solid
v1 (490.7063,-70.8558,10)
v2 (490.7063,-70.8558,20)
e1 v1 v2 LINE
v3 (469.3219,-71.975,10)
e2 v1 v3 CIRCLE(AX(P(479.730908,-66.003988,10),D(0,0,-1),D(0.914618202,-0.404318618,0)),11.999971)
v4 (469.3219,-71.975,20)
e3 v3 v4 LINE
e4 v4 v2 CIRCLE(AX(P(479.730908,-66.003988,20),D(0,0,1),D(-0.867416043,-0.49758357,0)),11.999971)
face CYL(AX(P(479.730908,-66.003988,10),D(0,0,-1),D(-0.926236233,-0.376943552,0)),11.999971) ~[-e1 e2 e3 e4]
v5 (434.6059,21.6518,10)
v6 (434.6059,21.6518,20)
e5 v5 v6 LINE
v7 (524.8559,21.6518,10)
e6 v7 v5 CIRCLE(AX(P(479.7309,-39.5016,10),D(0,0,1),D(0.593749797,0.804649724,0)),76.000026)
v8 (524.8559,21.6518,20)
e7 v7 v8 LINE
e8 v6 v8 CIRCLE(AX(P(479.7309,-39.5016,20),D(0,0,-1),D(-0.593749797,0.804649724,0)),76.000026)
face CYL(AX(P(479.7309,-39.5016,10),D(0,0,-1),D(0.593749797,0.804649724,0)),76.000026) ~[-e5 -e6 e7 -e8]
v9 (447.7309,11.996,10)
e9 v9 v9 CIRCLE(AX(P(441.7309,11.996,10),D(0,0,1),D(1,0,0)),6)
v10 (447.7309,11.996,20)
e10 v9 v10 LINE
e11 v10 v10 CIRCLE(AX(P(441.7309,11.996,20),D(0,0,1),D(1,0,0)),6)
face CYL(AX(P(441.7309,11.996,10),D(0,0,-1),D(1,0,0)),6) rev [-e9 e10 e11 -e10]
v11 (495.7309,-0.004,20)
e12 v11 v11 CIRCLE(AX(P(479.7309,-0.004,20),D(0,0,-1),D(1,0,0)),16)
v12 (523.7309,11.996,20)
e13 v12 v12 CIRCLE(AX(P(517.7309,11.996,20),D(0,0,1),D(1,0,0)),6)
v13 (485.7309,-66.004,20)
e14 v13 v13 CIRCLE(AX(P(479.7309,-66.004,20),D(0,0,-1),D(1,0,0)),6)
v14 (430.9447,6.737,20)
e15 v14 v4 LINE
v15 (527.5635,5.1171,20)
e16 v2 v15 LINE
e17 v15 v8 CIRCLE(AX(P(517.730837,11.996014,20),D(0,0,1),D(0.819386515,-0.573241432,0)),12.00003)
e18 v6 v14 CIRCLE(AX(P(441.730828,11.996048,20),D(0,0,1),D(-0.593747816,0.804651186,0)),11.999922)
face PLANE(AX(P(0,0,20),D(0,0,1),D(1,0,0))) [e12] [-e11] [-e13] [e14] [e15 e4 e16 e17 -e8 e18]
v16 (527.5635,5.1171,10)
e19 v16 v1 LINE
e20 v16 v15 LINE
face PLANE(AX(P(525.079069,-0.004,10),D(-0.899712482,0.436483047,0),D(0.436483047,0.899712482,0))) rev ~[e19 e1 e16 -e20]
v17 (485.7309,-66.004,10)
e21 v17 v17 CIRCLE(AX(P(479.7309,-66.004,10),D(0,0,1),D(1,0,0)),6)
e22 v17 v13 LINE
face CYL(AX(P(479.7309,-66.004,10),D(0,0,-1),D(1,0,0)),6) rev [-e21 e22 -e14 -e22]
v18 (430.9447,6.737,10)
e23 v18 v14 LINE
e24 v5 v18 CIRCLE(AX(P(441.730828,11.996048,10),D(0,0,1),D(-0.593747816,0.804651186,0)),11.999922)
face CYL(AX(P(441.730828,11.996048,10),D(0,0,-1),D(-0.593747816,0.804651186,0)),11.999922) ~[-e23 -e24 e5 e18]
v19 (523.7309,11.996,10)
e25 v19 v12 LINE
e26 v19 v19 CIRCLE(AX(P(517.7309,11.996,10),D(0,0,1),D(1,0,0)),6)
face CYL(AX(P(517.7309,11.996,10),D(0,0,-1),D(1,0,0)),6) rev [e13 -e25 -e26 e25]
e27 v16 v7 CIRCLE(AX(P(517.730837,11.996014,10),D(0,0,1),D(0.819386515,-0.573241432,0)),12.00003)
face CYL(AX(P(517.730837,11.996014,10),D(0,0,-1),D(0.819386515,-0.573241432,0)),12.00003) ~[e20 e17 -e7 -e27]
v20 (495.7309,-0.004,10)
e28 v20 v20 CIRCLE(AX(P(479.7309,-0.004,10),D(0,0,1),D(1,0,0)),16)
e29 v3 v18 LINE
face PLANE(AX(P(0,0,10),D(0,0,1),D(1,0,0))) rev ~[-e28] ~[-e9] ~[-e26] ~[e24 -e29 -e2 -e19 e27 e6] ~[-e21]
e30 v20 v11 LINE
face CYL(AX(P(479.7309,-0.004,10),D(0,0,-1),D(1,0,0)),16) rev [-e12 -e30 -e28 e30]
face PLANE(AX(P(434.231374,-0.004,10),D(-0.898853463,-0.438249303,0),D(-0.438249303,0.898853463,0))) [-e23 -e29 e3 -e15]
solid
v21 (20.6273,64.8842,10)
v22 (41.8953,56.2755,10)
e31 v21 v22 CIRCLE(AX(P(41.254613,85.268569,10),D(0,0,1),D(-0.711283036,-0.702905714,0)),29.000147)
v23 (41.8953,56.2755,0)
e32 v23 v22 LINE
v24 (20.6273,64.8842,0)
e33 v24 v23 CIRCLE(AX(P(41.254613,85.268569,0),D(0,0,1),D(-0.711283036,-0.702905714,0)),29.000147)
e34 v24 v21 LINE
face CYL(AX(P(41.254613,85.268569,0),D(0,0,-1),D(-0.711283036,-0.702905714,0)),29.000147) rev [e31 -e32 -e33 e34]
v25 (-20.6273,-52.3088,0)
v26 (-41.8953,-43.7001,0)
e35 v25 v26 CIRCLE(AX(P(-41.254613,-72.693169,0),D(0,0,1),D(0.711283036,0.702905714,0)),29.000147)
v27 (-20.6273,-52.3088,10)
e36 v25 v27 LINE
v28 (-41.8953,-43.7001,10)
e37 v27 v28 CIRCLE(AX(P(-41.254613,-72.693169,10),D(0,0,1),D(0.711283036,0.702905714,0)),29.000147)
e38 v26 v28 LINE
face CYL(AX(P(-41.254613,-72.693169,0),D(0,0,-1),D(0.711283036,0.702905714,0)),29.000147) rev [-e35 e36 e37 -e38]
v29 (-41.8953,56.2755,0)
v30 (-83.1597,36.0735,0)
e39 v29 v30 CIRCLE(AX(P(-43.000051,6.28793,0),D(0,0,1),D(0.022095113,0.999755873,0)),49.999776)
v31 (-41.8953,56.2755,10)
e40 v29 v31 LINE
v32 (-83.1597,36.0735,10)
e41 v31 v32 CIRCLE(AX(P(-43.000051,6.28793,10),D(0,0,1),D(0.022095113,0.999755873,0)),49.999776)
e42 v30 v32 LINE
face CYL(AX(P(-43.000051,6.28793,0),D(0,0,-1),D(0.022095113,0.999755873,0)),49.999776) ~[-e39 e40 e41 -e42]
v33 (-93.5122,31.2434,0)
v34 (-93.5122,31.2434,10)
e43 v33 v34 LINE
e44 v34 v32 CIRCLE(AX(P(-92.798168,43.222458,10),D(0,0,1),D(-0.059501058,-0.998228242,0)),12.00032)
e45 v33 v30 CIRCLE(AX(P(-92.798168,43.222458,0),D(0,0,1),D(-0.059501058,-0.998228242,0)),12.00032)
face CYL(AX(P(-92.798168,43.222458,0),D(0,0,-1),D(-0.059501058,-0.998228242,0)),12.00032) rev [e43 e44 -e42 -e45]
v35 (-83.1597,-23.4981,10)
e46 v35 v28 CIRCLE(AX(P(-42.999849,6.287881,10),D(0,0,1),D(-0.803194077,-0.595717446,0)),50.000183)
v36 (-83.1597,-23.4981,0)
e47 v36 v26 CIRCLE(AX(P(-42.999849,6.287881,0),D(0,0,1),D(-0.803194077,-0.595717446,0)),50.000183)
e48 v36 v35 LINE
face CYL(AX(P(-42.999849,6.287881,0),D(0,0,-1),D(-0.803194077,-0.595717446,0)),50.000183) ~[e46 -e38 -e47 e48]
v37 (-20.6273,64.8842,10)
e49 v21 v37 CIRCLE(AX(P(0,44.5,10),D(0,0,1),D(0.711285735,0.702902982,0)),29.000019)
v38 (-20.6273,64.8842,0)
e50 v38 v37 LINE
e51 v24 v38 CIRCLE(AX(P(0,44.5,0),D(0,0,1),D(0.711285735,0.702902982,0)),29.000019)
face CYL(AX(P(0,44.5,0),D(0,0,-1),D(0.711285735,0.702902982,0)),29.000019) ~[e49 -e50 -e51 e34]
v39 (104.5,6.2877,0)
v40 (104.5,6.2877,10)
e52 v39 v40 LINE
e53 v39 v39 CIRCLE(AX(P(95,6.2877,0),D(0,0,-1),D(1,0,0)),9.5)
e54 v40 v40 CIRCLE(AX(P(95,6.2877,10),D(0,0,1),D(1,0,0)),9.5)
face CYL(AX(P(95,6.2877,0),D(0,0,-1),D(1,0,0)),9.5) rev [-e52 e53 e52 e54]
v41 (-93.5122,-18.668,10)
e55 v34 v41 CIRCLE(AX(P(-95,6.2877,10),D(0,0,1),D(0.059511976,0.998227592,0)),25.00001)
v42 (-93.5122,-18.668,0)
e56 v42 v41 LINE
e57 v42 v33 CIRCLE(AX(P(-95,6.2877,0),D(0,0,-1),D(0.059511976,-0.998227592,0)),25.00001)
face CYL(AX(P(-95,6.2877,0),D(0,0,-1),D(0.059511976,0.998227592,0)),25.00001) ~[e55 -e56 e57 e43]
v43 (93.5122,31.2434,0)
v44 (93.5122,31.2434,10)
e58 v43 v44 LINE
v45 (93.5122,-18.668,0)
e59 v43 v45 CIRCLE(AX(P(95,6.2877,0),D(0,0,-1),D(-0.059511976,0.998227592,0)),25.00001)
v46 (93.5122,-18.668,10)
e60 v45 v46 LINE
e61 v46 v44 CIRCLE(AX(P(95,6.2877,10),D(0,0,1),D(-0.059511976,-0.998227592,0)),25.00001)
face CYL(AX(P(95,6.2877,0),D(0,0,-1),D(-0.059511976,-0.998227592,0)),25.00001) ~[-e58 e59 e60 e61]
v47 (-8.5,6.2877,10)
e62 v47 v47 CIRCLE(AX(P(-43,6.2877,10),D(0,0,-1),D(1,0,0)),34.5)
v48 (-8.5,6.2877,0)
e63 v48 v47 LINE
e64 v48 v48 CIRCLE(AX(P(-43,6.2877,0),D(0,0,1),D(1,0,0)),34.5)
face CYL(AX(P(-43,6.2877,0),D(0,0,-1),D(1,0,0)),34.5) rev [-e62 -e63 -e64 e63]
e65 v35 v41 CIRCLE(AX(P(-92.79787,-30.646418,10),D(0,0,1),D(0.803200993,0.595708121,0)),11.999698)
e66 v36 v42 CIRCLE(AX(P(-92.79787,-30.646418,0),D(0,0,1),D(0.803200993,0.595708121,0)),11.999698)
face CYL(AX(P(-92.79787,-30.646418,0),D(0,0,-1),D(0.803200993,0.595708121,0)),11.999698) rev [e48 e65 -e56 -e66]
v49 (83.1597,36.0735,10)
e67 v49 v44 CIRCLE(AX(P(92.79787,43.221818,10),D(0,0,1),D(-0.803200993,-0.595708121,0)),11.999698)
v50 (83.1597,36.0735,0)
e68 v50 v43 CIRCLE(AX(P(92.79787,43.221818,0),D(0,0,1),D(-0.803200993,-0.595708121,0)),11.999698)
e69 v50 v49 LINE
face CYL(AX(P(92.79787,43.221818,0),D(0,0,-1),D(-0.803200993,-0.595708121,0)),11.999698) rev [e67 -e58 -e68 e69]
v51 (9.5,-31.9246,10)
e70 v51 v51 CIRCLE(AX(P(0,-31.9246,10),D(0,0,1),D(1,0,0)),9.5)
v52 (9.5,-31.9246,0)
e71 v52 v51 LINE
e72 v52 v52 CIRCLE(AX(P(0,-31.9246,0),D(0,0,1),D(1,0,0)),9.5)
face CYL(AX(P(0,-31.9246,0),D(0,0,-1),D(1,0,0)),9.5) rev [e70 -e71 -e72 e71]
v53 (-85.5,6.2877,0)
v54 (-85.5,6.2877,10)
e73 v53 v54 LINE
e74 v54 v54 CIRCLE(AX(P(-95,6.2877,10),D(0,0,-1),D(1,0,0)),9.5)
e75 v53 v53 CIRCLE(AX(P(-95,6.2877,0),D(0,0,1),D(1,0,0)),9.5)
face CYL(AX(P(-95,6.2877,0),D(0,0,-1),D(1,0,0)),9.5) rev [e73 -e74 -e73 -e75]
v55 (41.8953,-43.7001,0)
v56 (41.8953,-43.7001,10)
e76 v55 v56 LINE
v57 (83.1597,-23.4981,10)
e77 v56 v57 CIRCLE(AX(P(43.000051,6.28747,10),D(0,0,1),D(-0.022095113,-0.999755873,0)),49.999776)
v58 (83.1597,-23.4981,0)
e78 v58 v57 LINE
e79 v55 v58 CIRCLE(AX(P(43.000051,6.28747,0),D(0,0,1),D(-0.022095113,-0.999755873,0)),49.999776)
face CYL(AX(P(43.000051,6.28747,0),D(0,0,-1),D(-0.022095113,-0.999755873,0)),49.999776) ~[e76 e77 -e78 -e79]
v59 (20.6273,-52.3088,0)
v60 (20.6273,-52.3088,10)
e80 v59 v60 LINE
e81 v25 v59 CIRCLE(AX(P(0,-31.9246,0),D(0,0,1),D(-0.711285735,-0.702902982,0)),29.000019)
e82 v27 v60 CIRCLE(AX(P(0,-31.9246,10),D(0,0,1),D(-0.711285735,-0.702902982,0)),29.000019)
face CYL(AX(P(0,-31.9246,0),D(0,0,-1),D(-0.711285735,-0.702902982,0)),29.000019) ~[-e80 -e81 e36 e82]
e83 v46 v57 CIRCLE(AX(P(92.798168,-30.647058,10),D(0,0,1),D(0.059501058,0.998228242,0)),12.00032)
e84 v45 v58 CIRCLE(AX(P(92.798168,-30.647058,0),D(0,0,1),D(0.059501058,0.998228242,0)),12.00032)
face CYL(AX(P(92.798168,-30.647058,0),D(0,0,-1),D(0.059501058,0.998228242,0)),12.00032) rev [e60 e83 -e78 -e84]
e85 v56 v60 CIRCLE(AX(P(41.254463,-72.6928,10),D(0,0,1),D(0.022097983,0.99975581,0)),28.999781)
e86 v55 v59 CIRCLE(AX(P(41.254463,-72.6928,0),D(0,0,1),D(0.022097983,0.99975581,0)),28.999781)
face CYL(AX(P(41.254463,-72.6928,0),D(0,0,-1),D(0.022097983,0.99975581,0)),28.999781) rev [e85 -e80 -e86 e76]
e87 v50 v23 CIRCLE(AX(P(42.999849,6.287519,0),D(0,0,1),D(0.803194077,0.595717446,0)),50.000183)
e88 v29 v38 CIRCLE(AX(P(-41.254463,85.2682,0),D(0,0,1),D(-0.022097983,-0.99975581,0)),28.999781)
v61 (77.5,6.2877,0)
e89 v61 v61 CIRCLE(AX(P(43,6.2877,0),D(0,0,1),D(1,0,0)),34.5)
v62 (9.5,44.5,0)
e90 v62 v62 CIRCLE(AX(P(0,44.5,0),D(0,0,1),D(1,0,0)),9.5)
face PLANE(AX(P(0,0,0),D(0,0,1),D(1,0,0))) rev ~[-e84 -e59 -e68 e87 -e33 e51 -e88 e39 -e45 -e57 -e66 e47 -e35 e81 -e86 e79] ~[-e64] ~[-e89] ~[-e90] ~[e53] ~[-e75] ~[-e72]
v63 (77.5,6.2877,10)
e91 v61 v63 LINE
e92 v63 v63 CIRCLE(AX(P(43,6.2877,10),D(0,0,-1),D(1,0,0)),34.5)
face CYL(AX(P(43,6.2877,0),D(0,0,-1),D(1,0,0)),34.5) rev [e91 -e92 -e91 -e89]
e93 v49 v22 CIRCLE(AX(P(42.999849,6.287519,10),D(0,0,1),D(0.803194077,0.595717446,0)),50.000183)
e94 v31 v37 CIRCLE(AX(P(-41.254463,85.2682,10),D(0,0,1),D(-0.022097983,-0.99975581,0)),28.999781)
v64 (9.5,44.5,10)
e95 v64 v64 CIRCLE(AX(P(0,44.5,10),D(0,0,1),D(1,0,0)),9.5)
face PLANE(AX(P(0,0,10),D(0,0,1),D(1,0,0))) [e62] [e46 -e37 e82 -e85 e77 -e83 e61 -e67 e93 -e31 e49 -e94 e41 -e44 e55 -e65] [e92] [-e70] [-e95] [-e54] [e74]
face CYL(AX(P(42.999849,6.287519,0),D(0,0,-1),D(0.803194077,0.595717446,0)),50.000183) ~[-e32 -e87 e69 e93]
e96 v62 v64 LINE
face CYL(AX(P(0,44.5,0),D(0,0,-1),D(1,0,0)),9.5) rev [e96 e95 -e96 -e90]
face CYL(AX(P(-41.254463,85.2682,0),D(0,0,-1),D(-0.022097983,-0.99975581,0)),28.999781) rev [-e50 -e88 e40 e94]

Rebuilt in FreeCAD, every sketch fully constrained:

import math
import FreeCAD as App
import Part
import Sketcher
Q = App.Units.Quantity

doc = App.newDocument("Part")
body = doc.addObject("PartDesign::Body", "Body")
body.AllowCompound = True

sketch1 = body.newObject("Sketcher::SketchObject", "Sketch")
sketch1.AttachmentSupport = (doc.getObject("XY_Plane"), [""])
sketch1.MapMode = "FlatFace"
sketch1.addGeometry([
    Part.ArcOfCircle(Part.Circle(App.Vector(95, 6, 0), App.Vector(0, 0, 1), 25), math.radians(-93), math.radians(93)),
    Part.ArcOfCircle(Part.Circle(App.Vector(93, 43, 0), App.Vector(0, 0, 1), 12), math.radians(-143), math.radians(-87)),
    Part.ArcOfCircle(Part.Circle(App.Vector(43, 6, 0), App.Vector(0, 0, 1), 50), math.radians(37), math.radians(91)),
    Part.ArcOfCircle(Part.Circle(App.Vector(41, 85, 0), App.Vector(0, 0, 1), 29), math.radians(-135), math.radians(-89)),
    Part.ArcOfCircle(Part.Circle(App.Vector(0, 44, 0), App.Vector(0, 0, 1), 29), math.radians(45), math.radians(135)),
    Part.ArcOfCircle(Part.Circle(App.Vector(-41, 85, 0), App.Vector(0, 0, 1), 29), math.radians(-91), math.radians(-45)),
    Part.ArcOfCircle(Part.Circle(App.Vector(-43, 6, 0), App.Vector(0, 0, 1), 50), math.radians(89), math.radians(143)),
    Part.ArcOfCircle(Part.Circle(App.Vector(-93, 43, 0), App.Vector(0, 0, 1), 12), math.radians(-93), math.radians(-37)),
    Part.ArcOfCircle(Part.Circle(App.Vector(-95, 6, 0), App.Vector(0, 0, 1), 25), math.radians(87), math.radians(273)),
    Part.ArcOfCircle(Part.Circle(App.Vector(-93, -31, 0), App.Vector(0, 0, 1), 12), math.radians(37), math.radians(93)),
    Part.ArcOfCircle(Part.Circle(App.Vector(-43, 6, 0), App.Vector(0, 0, 1), 50), math.radians(-143), math.radians(-89)),
    Part.ArcOfCircle(Part.Circle(App.Vector(-41, -73, 0), App.Vector(0, 0, 1), 29), math.radians(45), math.radians(91)),
    Part.ArcOfCircle(Part.Circle(App.Vector(0, -32, 0), App.Vector(0, 0, 1), 29), math.radians(-135), math.radians(-45)),
    Part.ArcOfCircle(Part.Circle(App.Vector(41, -73, 0), App.Vector(0, 0, 1), 29), math.radians(89), math.radians(135)),
    Part.ArcOfCircle(Part.Circle(App.Vector(43, 6, 0), App.Vector(0, 0, 1), 50), math.radians(-91), math.radians(-37)),
    Part.ArcOfCircle(Part.Circle(App.Vector(93, -31, 0), App.Vector(0, 0, 1), 12), math.radians(87), math.radians(143)),
    Part.Circle(App.Vector(95, 6, 0), App.Vector(0, 0, 1), 10),
    Part.Circle(App.Vector(-95, 6, 0), App.Vector(0, 0, 1), 10),
    Part.Circle(App.Vector(-43, 6, 0), App.Vector(0, 0, 1), 34),
    Part.Circle(App.Vector(43, 6, 0), App.Vector(0, 0, 1), 34),
    Part.Circle(App.Vector(0, -32, 0), App.Vector(0, 0, 1), 10),
    Part.Circle(App.Vector(0, 44, 0), App.Vector(0, 0, 1), 10),
], False)
sketch1.addConstraint([
    Sketcher.Constraint("Tangent", 0, 2, 1, 2),
    Sketcher.Constraint("Tangent", 1, 1, 2, 1),
    Sketcher.Constraint("Tangent", 2, 2, 3, 2),
    Sketcher.Constraint("Tangent", 3, 1, 4, 1),
    Sketcher.Constraint("Tangent", 4, 2, 5, 2),
    Sketcher.Constraint("Tangent", 5, 1, 6, 1),
    Sketcher.Constraint("Tangent", 6, 2, 7, 2),
    Sketcher.Constraint("Tangent", 7, 1, 8, 1),
    Sketcher.Constraint("Tangent", 8, 2, 9, 2),
    Sketcher.Constraint("Tangent", 9, 1, 10, 1),
    Sketcher.Constraint("Tangent", 10, 2, 11, 2),
    Sketcher.Constraint("Tangent", 11, 1, 12, 1),
    Sketcher.Constraint("Tangent", 12, 2, 13, 2),
    Sketcher.Constraint("Tangent", 13, 1, 14, 1),
    Sketcher.Constraint("Tangent", 14, 2, 15, 2),
    Sketcher.Constraint("Tangent", 15, 1, 0, 1),
    Sketcher.Constraint("Coincident", 10, 3, 6, 3),
    Sketcher.Constraint("Coincident", 14, 3, 2, 3),
    Sketcher.Constraint("Coincident", 16, 3, 0, 3),
    Sketcher.Constraint("Coincident", 17, 3, 8, 3),
    Sketcher.Constraint("Coincident", 18, 3, 6, 3),
    Sketcher.Constraint("Coincident", 19, 3, 2, 3),
    Sketcher.Constraint("Coincident", 20, 3, 12, 3),
    Sketcher.Constraint("Coincident", 21, 3, 4, 3),
    Sketcher.Constraint("Equal", 3, 4),
    Sketcher.Constraint("Equal", 4, 5),
    Sketcher.Constraint("Equal", 2, 6),
    Sketcher.Constraint("Equal", 1, 7),
    Sketcher.Constraint("Equal", 0, 8),
    Sketcher.Constraint("Equal", 7, 9),
    Sketcher.Constraint("Equal", 6, 10),
    Sketcher.Constraint("Equal", 5, 11),
    Sketcher.Constraint("Equal", 11, 12),
    Sketcher.Constraint("Equal", 12, 13),
    Sketcher.Constraint("Equal", 10, 14),
    Sketcher.Constraint("Equal", 9, 15),
    Sketcher.Constraint("Equal", 16, 17),
    Sketcher.Constraint("Equal", 18, 19),
    Sketcher.Constraint("Equal", 17, 20),
    Sketcher.Constraint("Equal", 20, 21),
    Sketcher.Constraint("Symmetric", 3, 3, 5, 3, -2),
    Sketcher.Constraint("Symmetric", 1, 3, 7, 3, -2),
    Sketcher.Constraint("PointOnObject", 12, 3, -2),
    Sketcher.Constraint("Horizontal", 0, 3, 2, 3),
    Sketcher.Constraint("Horizontal", 6, 3, 8, 3),
    Sketcher.Constraint("Vertical", 5, 3, 11, 3),
    Sketcher.Constraint("Diameter", 16, Q("19 mm")),
    Sketcher.Constraint("Diameter", 18, Q("69 mm")),
    Sketcher.Constraint("Radius", 0, Q("25 mm")),
    Sketcher.Constraint("Radius", 1, Q("12 mm")),
    Sketcher.Constraint("Radius", 2, Q("50 mm")),
    Sketcher.Constraint("Radius", 3, Q("29 mm")),
    Sketcher.Constraint("DistanceX", -1, 1, 0, 3, Q("95 mm")),
    Sketcher.Constraint("DistanceX", -1, 1, 2, 3, Q("43 mm")),
    Sketcher.Constraint("DistanceY", -1, 1, 4, 3, Q("44.5 mm")),
    Sketcher.Constraint("DistanceY", 10, 2, -1, 1, Q("43.7 mm")),
])
pad1 = body.newObject("PartDesign::Pad", "Pad")
pad1.Profile = sketch1
pad1.Length = 10

sketch2 = body.newObject("Sketcher::SketchObject", "Sketch001")
sketch2.AttachmentSupport = (doc.getObject("XY_Plane"), [""])
sketch2.MapMode = "FlatFace"
sketch2.AttachmentOffset = App.Placement(App.Vector(0, 0, 10), App.Rotation())
sketch2.addGeometry([
    Part.ArcOfCircle(Part.Circle(App.Vector(480, -40, 0), App.Vector(0, 0, 1), 76), math.radians(54), math.radians(126)),
    Part.ArcOfCircle(Part.Circle(App.Vector(442, 12, 0), App.Vector(0, 0, 1), 12), math.radians(126), math.radians(206)),
    Part.LineSegment(App.Vector(431, 7, 0), App.Vector(469, -72, 0)),
    Part.ArcOfCircle(Part.Circle(App.Vector(480, -66, 0), App.Vector(0, 0, 1), 12), math.radians(-150), math.radians(-24)),
    Part.LineSegment(App.Vector(491, -71, 0), App.Vector(528, 5, 0)),
    Part.ArcOfCircle(Part.Circle(App.Vector(518, 12, 0), App.Vector(0, 0, 1), 12), math.radians(-35), math.radians(54)),
    Part.Circle(App.Vector(480, 0, 0), App.Vector(0, 0, 1), 16),
    Part.Circle(App.Vector(518, 12, 0), App.Vector(0, 0, 1), 6),
    Part.Circle(App.Vector(480, -66, 0), App.Vector(0, 0, 1), 6),
    Part.Circle(App.Vector(442, 12, 0), App.Vector(0, 0, 1), 6),
], False)
sketch2.addConstraint([
    Sketcher.Constraint("Tangent", 0, 2, 1, 1),
    Sketcher.Constraint("Tangent", 1, 2, 2, 1),
    Sketcher.Constraint("Coincident", 2, 2, 3, 1),
    Sketcher.Constraint("Coincident", 3, 2, 4, 1),
    Sketcher.Constraint("Coincident", 4, 2, 5, 1),
    Sketcher.Constraint("Tangent", 5, 2, 0, 1),
    Sketcher.Constraint("Coincident", 7, 3, 5, 3),
    Sketcher.Constraint("Coincident", 8, 3, 3, 3),
    Sketcher.Constraint("Coincident", 9, 3, 1, 3),
    Sketcher.Constraint("Equal", 1, 3),
    Sketcher.Constraint("Equal", 3, 5),
    Sketcher.Constraint("Equal", 7, 8),
    Sketcher.Constraint("Equal", 8, 9),
    Sketcher.Constraint("Horizontal", 1, 3, 5, 3),
    Sketcher.Constraint("Vertical", 0, 3, 3, 3),
    Sketcher.Constraint("Vertical", 3, 3, 6, 3),
    Sketcher.Constraint("Diameter", 6, Q("32 mm")),
    Sketcher.Constraint("Diameter", 7, Q("12 mm")),
    Sketcher.Constraint("Radius", 0, Q("76 mm")),
    Sketcher.Constraint("Radius", 1, Q("12 mm")),
    Sketcher.Constraint("DistanceX", 1, 3, 0, 3, Q("38 mm")),
    Sketcher.Constraint("DistanceY", 6, 3, 1, 3, Q("12 mm")),
    Sketcher.Constraint("DistanceY", 3, 3, 6, 3, Q("66 mm")),
    Sketcher.Constraint("Angle", 4, Q("64.1203 deg")),
    Sketcher.Constraint("DistanceX", -1, 1, 0, 3, Q("479.731 mm")),
    Sketcher.Constraint("DistanceY", -1, 1, 1, 3, Q("11.996 mm")),
    Sketcher.Constraint("DistanceX", -1, 1, 2, 2, Q("469.322 mm")),
    Sketcher.Constraint("DistanceY", -1, 1, 4, 2, Q("5.117 mm")),
])
pad2 = body.newObject("PartDesign::Pad", "Pad001")
pad2.Profile = sketch2
pad2.Length = 10

doc.recompute()
